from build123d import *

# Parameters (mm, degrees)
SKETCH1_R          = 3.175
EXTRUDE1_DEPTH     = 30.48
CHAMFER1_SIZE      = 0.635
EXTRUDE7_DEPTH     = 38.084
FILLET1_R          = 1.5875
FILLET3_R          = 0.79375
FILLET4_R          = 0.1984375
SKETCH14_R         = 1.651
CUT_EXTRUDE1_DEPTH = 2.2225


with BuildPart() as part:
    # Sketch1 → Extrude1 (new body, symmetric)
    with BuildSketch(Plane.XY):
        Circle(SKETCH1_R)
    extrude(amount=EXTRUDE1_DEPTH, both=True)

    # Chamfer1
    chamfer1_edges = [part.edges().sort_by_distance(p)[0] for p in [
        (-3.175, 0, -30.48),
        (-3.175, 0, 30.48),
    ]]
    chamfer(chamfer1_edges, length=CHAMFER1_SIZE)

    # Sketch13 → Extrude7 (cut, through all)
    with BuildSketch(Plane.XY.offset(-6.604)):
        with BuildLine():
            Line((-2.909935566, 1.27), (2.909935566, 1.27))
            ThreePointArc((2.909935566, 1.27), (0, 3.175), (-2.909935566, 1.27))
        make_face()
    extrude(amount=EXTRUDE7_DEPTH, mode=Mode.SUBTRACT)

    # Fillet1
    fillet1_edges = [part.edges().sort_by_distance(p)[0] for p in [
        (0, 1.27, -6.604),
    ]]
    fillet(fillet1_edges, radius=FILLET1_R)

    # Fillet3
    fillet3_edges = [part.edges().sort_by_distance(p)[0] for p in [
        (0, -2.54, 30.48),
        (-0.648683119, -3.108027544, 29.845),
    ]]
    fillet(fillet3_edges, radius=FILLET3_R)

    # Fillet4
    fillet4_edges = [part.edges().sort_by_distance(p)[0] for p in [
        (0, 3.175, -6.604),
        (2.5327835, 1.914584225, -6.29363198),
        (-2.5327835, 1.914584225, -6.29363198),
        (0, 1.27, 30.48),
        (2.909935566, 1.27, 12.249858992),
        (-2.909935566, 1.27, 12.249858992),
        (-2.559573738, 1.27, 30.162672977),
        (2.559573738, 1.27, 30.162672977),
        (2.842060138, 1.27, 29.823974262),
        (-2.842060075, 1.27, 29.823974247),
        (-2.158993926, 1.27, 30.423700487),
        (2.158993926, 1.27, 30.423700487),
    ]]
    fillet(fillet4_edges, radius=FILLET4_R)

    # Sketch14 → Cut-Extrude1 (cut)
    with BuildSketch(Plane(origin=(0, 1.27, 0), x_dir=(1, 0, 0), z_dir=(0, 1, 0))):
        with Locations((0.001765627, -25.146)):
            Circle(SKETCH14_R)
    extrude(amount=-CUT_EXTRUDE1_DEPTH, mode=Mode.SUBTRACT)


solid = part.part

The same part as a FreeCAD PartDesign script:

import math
import FreeCAD as App
import Part
import Sketcher
from FreeCAD import Vector
Q = App.Units.Quantity


def edges_at(feature, points):
    """Names of the edges that pass closest to the given points."""
    edges = feature.Shape.Edges
    near = lambda p: min(range(len(edges)), key=lambda i: edges[i].distToShape(Part.Vertex(*p))[0])
    return sorted({f"Edge{near(p) + 1}" for p in points})

doc = App.newDocument("Part")
body = doc.addObject("PartDesign::Body", "Body")

sketch1 = body.newObject("Sketcher::SketchObject", "Sketch")
sketch1.AttachmentSupport = (doc.getObject("XY_Plane"), [""])
sketch1.MapMode = "FlatFace"
sketch1.addGeometry(Part.Circle(Vector(0, 0, 0), Vector(0, 0, 1), 3.175), False)
sketch1.addConstraint([
    Sketcher.Constraint("Coincident", 0, 3, -1, 1),
    Sketcher.Constraint("Diameter", 0, Q("0.25 in")),
])
pad1 = body.newObject("PartDesign::Pad", "Pad")
pad1.Profile = sketch1
pad1.Length = Q("2.4 in")
pad1.Midplane = True
doc.recompute()

chamfer = body.newObject("PartDesign::Chamfer", "Chamfer")
chamfer.Base = (pad1, edges_at(pad1, [(-3.175, 0, -30.48), (-3.175, 0, 30.48)]))
chamfer.Size = Q("0.025 in")

sketch2 = body.newObject("Sketcher::SketchObject", "Sketch001")
sketch2.AttachmentSupport = (doc.getObject("XY_Plane"), [""])
sketch2.MapMode = "FlatFace"
sketch2.AttachmentOffset = App.Placement(Vector(0, 0, -0.26 * 25.4), App.Rotation())
sketch2.addGeometry([
    Part.LineSegment(Vector(-2.909936, 1.27, 0), Vector(2.909936, 1.27, 0)),
    Part.ArcOfCircle(Part.Circle(Vector(0, 0, 0), Vector(0, 0, 1), 3.175), math.radians(23.578178), math.radians(156.421822)),
], False)
sketch2.addConstraint([
    Sketcher.Constraint("Coincident", 0, 1, 1, 2),
    Sketcher.Constraint("Coincident", 1, 1, 0, 2),
    Sketcher.Constraint("Horizontal", 0),
    Sketcher.Constraint("Coincident", 1, 3, -1, 1),
    Sketcher.Constraint("Radius", 1, Q("0.125 in")),
    Sketcher.Constraint("DistanceY", -1, 1, 0, 1, Q("0.05 in")),
])
pocket1 = body.newObject("PartDesign::Pocket", "Pocket")
pocket1.Profile = sketch2
pocket1.Type = "ThroughAll"
pocket1.Reversed = True
doc.recompute()

fillet = body.newObject("PartDesign::Fillet", "Fillet")
fillet.Base = (pocket1, edges_at(pocket1, [(0, 1.27, -6.604)]))
fillet.Radius = Q("0.0625 in")
doc.recompute()

fillet2 = body.newObject("PartDesign::Fillet", "Fillet001")
fillet2.Base = (fillet, edges_at(fillet, [(0, -2.54, 30.48), (-0.649, -3.108, 29.845)]))
fillet2.Radius = Q("0.03125 in")
doc.recompute()

fillet3 = body.newObject("PartDesign::Fillet", "Fillet002")
fillet3.Base = (fillet2, edges_at(fillet2, [
    (0, 3.175, -6.604),
    (2.533, 1.915, -6.294),
    (-2.533, 1.915, -6.294),
    (0, 1.27, 30.48),
    (2.91, 1.27, 12.25),
    (-2.91, 1.27, 12.25),
    (-2.56, 1.27, 30.163),
    (2.56, 1.27, 30.163),
    (2.842, 1.27, 29.824),
    (-2.842, 1.27, 29.824),
    (-2.159, 1.27, 30.424),
    (2.159, 1.27, 30.424),
]))
fillet3.Radius = 0.198437

sketch3 = body.newObject("Sketcher::SketchObject", "Sketch002")
sketch3.AttachmentSupport = (doc.getObject("XZ_Plane"), [""])
sketch3.MapMode = "FlatFace"
sketch3.AttachmentOffset = App.Placement(Vector(0, 0, -0.05 * 25.4), App.Rotation())
sketch3.addGeometry(Part.Circle(Vector(0.001766, 25.146, 0), Vector(0, 0, 1), 1.651), False)
sketch3.addConstraint([
    Sketcher.Constraint("Diameter", 0, Q("0.13 in")),
    Sketcher.Constraint("DistanceY", -1, 1, 0, 3, Q("0.99 in")),
    Sketcher.Constraint("DistanceX", -1, 1, 0, 3, 0.001766),
])
pocket2 = body.newObject("PartDesign::Pocket", "Pocket001")
pocket2.Profile = sketch3
pocket2.Length = Q("0.0875 in")
pocket2.Reversed = True

doc.recompute()
